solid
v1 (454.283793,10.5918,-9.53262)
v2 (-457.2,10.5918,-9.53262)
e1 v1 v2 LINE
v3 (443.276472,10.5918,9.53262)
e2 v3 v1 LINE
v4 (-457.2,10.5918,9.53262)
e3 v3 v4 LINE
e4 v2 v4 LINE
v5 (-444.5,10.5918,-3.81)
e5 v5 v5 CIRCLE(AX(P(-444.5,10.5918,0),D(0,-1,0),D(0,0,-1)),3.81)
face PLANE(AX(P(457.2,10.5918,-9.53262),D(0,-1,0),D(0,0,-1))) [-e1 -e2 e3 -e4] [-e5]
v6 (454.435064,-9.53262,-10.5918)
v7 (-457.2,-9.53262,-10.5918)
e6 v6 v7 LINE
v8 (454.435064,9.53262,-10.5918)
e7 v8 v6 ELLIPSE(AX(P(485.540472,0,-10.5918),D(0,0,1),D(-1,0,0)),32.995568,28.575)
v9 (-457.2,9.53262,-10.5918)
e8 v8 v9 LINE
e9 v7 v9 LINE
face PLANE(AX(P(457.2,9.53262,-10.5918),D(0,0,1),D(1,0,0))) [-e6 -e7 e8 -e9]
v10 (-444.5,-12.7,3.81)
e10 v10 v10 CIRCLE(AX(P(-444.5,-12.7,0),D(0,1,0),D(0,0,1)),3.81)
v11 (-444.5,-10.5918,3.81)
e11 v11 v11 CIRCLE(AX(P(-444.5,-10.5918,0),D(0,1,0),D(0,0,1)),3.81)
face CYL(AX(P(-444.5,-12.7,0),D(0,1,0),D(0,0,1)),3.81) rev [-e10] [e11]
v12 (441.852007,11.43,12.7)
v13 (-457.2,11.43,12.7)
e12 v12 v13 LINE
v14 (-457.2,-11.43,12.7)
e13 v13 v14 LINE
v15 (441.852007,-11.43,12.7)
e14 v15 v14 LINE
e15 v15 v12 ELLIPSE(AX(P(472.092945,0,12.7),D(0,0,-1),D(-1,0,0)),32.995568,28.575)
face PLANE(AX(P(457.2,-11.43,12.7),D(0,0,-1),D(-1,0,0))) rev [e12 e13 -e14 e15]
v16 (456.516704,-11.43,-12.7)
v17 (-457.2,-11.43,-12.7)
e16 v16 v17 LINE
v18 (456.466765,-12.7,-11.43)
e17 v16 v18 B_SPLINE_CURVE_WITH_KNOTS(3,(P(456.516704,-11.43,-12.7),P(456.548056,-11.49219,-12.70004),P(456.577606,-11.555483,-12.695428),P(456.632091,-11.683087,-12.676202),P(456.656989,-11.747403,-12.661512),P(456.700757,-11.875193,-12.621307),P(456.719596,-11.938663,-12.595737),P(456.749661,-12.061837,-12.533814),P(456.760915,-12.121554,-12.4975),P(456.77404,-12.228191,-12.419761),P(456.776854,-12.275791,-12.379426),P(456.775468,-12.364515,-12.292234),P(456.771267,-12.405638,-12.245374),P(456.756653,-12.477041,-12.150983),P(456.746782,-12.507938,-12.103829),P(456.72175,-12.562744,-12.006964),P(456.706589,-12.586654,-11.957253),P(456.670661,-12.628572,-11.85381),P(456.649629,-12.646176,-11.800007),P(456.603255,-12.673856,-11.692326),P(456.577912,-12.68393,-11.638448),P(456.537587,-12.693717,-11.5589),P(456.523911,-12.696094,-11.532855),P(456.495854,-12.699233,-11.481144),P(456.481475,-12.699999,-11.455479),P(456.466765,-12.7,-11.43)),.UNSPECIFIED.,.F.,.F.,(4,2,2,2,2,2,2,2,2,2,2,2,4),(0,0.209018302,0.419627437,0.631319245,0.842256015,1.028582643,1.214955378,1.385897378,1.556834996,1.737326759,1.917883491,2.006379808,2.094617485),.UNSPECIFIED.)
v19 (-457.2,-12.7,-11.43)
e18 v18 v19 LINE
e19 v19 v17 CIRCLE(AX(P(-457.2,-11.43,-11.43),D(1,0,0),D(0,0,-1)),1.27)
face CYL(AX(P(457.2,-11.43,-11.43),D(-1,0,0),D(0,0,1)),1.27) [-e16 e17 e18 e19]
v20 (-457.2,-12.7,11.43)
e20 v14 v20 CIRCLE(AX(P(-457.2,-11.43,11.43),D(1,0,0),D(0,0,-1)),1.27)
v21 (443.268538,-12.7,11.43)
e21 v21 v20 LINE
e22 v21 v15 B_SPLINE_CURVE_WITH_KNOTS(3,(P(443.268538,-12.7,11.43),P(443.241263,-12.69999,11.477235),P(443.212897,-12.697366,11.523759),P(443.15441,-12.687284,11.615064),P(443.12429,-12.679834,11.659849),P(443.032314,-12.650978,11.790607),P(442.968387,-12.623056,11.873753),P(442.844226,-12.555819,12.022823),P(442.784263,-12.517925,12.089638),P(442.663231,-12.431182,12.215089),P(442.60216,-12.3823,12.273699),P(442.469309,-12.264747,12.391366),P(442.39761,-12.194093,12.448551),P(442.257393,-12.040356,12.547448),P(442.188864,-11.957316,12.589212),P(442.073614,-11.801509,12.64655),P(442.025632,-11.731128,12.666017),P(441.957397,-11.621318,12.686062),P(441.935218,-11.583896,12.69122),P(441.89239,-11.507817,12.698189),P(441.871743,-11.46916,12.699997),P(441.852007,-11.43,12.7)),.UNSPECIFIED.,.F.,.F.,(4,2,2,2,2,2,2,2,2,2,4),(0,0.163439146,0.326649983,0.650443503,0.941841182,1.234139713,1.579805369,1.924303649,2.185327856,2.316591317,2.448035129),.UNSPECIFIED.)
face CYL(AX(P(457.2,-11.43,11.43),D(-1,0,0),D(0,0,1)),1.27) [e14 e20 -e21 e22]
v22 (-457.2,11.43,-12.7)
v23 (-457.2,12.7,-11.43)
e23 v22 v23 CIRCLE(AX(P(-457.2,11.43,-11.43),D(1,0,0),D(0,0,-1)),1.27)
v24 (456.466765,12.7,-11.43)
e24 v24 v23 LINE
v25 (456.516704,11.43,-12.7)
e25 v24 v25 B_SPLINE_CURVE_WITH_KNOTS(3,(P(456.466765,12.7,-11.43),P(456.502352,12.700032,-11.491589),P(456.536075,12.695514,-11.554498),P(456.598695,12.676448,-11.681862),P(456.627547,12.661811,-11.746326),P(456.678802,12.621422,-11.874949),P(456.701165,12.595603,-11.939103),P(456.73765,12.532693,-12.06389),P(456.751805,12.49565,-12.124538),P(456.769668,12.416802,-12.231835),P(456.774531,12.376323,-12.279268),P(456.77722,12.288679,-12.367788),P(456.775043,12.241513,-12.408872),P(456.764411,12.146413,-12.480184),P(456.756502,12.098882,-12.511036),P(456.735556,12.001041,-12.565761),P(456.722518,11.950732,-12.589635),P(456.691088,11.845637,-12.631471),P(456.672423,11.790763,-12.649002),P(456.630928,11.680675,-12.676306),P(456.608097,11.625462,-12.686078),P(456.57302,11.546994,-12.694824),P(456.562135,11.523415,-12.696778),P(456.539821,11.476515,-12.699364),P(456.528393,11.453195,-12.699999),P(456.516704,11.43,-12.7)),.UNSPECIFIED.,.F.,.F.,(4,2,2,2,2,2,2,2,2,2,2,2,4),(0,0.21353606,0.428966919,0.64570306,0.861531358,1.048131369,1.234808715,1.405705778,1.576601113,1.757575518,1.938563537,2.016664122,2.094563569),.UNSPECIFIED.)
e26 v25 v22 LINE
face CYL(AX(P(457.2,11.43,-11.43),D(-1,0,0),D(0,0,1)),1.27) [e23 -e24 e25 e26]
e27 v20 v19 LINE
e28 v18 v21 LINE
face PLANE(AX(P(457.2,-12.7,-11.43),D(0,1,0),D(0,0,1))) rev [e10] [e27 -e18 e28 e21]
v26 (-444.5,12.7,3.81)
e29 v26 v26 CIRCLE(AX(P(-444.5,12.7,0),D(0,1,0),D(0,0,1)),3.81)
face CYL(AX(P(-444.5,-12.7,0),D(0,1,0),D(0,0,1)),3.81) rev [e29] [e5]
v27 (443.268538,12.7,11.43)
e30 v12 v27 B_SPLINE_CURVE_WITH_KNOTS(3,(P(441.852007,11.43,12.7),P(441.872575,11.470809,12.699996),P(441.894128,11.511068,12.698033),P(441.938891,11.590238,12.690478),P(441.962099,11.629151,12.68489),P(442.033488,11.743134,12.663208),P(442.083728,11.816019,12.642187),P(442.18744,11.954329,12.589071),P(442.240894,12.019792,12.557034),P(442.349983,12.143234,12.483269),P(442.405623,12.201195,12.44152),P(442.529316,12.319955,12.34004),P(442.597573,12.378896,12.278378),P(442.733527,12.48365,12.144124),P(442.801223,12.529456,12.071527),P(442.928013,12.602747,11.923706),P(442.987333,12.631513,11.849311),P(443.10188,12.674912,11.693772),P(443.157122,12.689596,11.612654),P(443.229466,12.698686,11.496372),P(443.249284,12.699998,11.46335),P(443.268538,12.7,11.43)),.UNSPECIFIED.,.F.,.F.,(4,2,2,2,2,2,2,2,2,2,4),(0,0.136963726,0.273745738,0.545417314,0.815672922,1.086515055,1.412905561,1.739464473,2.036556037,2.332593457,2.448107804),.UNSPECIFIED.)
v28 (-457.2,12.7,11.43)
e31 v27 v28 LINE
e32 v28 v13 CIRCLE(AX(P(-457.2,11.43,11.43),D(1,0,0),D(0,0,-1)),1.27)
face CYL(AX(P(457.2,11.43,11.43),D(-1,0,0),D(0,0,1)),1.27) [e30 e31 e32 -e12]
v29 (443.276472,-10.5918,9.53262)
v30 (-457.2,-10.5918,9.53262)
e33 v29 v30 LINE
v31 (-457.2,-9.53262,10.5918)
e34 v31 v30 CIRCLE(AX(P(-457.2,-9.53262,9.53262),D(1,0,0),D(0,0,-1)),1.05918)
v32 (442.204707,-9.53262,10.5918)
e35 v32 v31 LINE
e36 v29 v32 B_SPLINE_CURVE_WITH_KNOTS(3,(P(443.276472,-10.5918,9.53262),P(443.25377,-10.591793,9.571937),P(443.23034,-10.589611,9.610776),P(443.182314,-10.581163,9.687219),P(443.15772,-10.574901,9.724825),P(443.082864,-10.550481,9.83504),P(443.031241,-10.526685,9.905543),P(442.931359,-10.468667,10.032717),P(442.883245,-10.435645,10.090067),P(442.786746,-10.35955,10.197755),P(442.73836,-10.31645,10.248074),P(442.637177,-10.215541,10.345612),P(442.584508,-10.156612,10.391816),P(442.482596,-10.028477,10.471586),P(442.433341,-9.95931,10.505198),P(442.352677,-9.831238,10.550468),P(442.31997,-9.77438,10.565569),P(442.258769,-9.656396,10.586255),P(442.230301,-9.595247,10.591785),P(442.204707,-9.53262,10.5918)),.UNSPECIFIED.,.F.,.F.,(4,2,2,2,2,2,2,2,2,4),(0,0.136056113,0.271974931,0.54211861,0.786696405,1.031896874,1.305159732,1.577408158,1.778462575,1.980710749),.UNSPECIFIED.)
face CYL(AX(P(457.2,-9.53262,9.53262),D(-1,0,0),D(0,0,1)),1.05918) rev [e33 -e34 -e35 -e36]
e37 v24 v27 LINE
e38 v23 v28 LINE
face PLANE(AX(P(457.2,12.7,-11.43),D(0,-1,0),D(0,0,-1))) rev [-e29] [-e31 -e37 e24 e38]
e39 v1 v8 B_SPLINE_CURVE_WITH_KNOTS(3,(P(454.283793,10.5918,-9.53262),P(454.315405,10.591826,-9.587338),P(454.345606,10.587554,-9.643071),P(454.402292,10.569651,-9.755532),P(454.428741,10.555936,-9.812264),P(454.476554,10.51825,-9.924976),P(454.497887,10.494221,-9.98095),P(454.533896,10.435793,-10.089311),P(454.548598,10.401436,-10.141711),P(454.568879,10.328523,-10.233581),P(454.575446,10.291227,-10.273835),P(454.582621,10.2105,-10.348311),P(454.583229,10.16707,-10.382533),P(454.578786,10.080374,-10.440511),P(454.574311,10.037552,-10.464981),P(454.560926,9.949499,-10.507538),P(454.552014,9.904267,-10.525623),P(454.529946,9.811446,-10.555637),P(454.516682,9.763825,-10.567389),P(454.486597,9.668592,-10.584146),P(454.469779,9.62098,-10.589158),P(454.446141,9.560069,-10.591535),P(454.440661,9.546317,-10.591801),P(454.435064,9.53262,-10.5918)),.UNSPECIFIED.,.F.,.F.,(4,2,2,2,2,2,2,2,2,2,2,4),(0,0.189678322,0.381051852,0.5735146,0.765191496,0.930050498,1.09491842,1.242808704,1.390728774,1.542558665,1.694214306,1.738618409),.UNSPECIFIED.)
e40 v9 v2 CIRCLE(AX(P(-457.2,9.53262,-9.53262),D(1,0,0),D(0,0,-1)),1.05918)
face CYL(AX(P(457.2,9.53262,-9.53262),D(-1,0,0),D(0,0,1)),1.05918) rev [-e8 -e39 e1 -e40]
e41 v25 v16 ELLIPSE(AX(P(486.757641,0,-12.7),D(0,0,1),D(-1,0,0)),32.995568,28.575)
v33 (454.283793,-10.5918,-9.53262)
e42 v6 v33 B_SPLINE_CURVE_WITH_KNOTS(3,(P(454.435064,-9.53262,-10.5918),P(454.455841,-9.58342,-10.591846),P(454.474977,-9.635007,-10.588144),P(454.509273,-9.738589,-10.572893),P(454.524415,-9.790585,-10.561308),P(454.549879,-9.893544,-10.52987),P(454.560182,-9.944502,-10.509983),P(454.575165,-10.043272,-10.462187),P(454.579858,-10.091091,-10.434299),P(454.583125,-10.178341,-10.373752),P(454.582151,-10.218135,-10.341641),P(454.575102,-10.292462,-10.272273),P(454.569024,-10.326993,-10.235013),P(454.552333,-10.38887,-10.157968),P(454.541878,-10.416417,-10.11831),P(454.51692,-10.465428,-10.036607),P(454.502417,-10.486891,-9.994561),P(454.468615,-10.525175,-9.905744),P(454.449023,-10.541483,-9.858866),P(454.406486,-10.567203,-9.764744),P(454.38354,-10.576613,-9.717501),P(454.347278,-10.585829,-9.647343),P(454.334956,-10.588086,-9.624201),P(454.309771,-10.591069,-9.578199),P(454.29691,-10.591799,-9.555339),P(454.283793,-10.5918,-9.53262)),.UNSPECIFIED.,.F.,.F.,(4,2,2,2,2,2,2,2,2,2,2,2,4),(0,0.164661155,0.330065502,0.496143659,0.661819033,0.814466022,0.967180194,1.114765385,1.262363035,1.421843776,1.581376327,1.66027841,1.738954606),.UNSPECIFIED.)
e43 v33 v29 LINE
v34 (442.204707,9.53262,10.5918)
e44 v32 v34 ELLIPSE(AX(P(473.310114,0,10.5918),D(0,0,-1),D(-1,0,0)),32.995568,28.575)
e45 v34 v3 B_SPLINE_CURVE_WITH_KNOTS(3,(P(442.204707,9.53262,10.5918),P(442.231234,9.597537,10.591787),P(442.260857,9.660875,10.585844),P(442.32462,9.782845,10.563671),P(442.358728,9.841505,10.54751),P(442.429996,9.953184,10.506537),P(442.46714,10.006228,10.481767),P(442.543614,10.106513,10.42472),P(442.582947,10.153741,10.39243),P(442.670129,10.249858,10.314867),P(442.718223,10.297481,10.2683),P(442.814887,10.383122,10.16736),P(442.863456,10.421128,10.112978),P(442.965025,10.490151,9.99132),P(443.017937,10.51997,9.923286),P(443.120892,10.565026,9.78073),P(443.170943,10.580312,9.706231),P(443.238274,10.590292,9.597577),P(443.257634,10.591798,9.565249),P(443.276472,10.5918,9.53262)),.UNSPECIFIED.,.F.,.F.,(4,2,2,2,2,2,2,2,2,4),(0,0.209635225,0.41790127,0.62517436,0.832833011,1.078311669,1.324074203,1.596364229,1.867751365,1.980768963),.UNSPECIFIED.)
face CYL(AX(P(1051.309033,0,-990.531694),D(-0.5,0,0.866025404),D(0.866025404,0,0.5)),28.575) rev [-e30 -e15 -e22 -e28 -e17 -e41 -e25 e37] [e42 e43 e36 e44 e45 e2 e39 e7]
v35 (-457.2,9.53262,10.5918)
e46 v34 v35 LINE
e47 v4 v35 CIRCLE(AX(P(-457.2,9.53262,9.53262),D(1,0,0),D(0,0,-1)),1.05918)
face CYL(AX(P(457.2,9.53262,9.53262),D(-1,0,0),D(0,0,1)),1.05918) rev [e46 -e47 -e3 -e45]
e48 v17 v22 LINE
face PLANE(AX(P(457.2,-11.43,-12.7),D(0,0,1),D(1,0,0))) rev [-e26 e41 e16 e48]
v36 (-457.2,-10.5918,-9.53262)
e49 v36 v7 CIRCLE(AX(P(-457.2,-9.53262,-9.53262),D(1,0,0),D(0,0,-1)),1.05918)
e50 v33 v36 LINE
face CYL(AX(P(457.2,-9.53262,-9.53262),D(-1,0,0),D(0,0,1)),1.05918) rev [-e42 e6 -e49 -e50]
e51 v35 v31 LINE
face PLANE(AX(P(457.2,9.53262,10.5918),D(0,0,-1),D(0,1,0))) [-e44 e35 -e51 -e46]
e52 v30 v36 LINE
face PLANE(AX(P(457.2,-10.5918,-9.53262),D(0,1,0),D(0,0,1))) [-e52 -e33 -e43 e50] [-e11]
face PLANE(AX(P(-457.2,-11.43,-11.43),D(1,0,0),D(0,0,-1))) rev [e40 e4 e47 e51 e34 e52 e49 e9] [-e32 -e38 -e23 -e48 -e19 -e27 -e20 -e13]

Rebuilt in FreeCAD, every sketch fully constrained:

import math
import FreeCAD as App
import Part
import Sketcher
Q = App.Units.Quantity

doc = App.newDocument("Part")
body = doc.addObject("PartDesign::Body", "Body")

# Sketch on YZ plane
sketch1 = body.newObject("Sketcher::SketchObject", "Sketch")
sketch1.AttachmentSupport = (doc.getObject("YZ_Plane"), [""])
sketch1.MapMode = "FlatFace"
sketch1.addGeometry(Part.LineSegment(App.Vector(-11.4, -12.7, 0), App.Vector(11.4, -12.7, 0)), False)
sketch1.addGeometry(Part.ArcOfCircle(Part.Circle(App.Vector(11.4, -11.4, 0), App.Vector(0, 0, 1), 1.3), math.radians(-90), math.radians(0)), False)
sketch1.addGeometry(Part.LineSegment(App.Vector(12.7, -11.4, 0), App.Vector(12.7, 11.4, 0)), False)
sketch1.addGeometry(Part.ArcOfCircle(Part.Circle(App.Vector(11.4, 11.4, 0), App.Vector(0, 0, 1), 1.3), math.radians(0), math.radians(90)), False)
sketch1.addGeometry(Part.LineSegment(App.Vector(11.4, 12.7, 0), App.Vector(-11.4, 12.7, 0)), False)
sketch1.addGeometry(Part.ArcOfCircle(Part.Circle(App.Vector(-11.4, 11.4, 0), App.Vector(0, 0, 1), 1.3), math.radians(90), math.radians(180)), False)
sketch1.addGeometry(Part.LineSegment(App.Vector(-12.7, 11.4, 0), App.Vector(-12.7, -11.4, 0)), False)
sketch1.addGeometry(Part.ArcOfCircle(Part.Circle(App.Vector(-11.4, -11.4, 0), App.Vector(0, 0, 1), 1.3), math.radians(180), math.radians(270)), False)
sketch1.addGeometry(Part.ArcOfCircle(Part.Circle(App.Vector(9.5, -9.5, 0), App.Vector(0, 0, 1), 1.1), math.radians(-90), math.radians(0)), False)
sketch1.addGeometry(Part.LineSegment(App.Vector(9.5, -10.6, 0), App.Vector(-9.5, -10.6, 0)), False)
sketch1.addGeometry(Part.ArcOfCircle(Part.Circle(App.Vector(-9.5, -9.5, 0), App.Vector(0, 0, 1), 1.1), math.radians(-180), math.radians(-90)), False)
sketch1.addGeometry(Part.LineSegment(App.Vector(-10.6, -9.5, 0), App.Vector(-10.6, 9.5, 0)), False)
sketch1.addGeometry(Part.ArcOfCircle(Part.Circle(App.Vector(-9.5, 9.5, 0), App.Vector(0, 0, 1), 1.1), math.radians(90), math.radians(180)), False)
sketch1.addGeometry(Part.LineSegment(App.Vector(-9.5, 10.6, 0), App.Vector(9.5, 10.6, 0)), False)
sketch1.addGeometry(Part.ArcOfCircle(Part.Circle(App.Vector(9.5, 9.5, 0), App.Vector(0, 0, 1), 1.1), math.radians(0), math.radians(90)), False)
sketch1.addGeometry(Part.LineSegment(App.Vector(10.6, 9.5, 0), App.Vector(10.6, -9.5, 0)), False)
sketch1.addConstraint(Sketcher.Constraint("Tangent", 0, 2, 1, 1))
sketch1.addConstraint(Sketcher.Constraint("Tangent", 1, 2, 2, 1))
sketch1.addConstraint(Sketcher.Constraint("Tangent", 2, 2, 3, 1))
sketch1.addConstraint(Sketcher.Constraint("Tangent", 3, 2, 4, 1))
sketch1.addConstraint(Sketcher.Constraint("Tangent", 4, 2, 5, 1))
sketch1.addConstraint(Sketcher.Constraint("Tangent", 5, 2, 6, 1))
sketch1.addConstraint(Sketcher.Constraint("Tangent", 6, 2, 7, 1))
sketch1.addConstraint(Sketcher.Constraint("Tangent", 7, 2, 0, 1))
sketch1.addConstraint(Sketcher.Constraint("Tangent", 8, 1, 9, 1))
sketch1.addConstraint(Sketcher.Constraint("Tangent", 9, 2, 10, 2))
sketch1.addConstraint(Sketcher.Constraint("Tangent", 10, 1, 11, 1))
sketch1.addConstraint(Sketcher.Constraint("Tangent", 11, 2, 12, 2))
sketch1.addConstraint(Sketcher.Constraint("Tangent", 12, 1, 13, 1))
sketch1.addConstraint(Sketcher.Constraint("Tangent", 13, 2, 14, 2))
sketch1.addConstraint(Sketcher.Constraint("Tangent", 14, 1, 15, 1))
sketch1.addConstraint(Sketcher.Constraint("Tangent", 15, 2, 8, 2))
sketch1.addConstraint(Sketcher.Constraint("Horizontal", 0))
sketch1.addConstraint(Sketcher.Constraint("Vertical", 2))
sketch1.addConstraint(Sketcher.Constraint("Horizontal", 4))
sketch1.addConstraint(Sketcher.Constraint("Vertical", 6))
sketch1.addConstraint(Sketcher.Constraint("Horizontal", 9))
sketch1.addConstraint(Sketcher.Constraint("Vertical", 11))
sketch1.addConstraint(Sketcher.Constraint("Horizontal", 13))
sketch1.addConstraint(Sketcher.Constraint("Vertical", 15))
sketch1.addConstraint(Sketcher.Constraint("Equal", 1, 3))
sketch1.addConstraint(Sketcher.Constraint("Equal", 3, 5))
sketch1.addConstraint(Sketcher.Constraint("Equal", 5, 7))
sketch1.addConstraint(Sketcher.Constraint("Equal", 8, 10))
sketch1.addConstraint(Sketcher.Constraint("Equal", 10, 12))
sketch1.addConstraint(Sketcher.Constraint("Equal", 12, 14))
sketch1.addConstraint(Sketcher.Constraint("Symmetric", 1, 3, 5, 3, -1, 1))
sketch1.addConstraint(Sketcher.Constraint("Symmetric", 8, 3, 12, 3, -1, 1))
sketch1.addConstraint(Sketcher.Constraint("Equal", 4, 2))
sketch1.addConstraint(Sketcher.Constraint("Equal", 13, 11))
sketch1.addConstraint(Sketcher.Constraint("Radius", 1, Q("0.05 in")))
sketch1.addConstraint(Sketcher.Constraint("DistanceX", 0, 1, 0, 2, Q("0.9 in")))
sketch1.addConstraint(Sketcher.Constraint("Radius", 8, Q("0.0417 in")))
sketch1.addConstraint(Sketcher.Constraint("DistanceX", 9, 2, 9, 1, Q("0.7506 in")))
pad1 = body.newObject("PartDesign::Pad", "Pad")
pad1.Profile = sketch1
pad1.Type = "TwoLengths"
pad1.Length = Q("18 in")
pad1.Length2 = Q("18 in")

# Sketch on XZ plane
sketch2 = body.newObject("Sketcher::SketchObject", "Sketch001")
sketch2.AttachmentSupport = (doc.getObject("XZ_Plane"), [""])
sketch2.MapMode = "FlatFace"
sketch2.AttachmentOffset = App.Placement(App.Vector(0, 0, -0.5 * 25.4), App.Rotation())
sketch2.addGeometry(Part.Circle(App.Vector(-444.5, 0, 0), App.Vector(0, 0, 1), 3.8), False)
sketch2.addConstraint(Sketcher.Constraint("PointOnObject", 0, 3, -1))
sketch2.addConstraint(Sketcher.Constraint("Diameter", 0, Q("0.3 in")))
sketch2.addConstraint(Sketcher.Constraint("DistanceX", 0, 3, -1, 1, Q("17.5 in")))
pocket1 = body.newObject("PartDesign::Pocket", "Pocket")
pocket1.Profile = sketch2
pocket1.Type = "ThroughAll"
pocket1.Reversed = True

# Sketch on XZ plane
sketch3 = body.newObject("Sketcher::SketchObject", "Sketch002")
sketch3.AttachmentSupport = (doc.getObject("XZ_Plane"), [""])
sketch3.MapMode = "FlatFace"
sketch3.AttachmentOffset = App.Placement(App.Vector(0, 0, -0.5 * 25.4), App.Rotation())
sketch3.addGeometry(Part.LineSegment(App.Vector(457, -13, 0), App.Vector(443, 13, 0)), False)
sketch3.addGeometry(Part.LineSegment(App.Vector(443, 13, 0), App.Vector(457, 13, 0)), False)
sketch3.addGeometry(Part.LineSegment(App.Vector(457, 13, 0), App.Vector(457, -13, 0)), False)
sketch3.addConstraint(Sketcher.Constraint("Coincident", 0, 2, 1, 1))
sketch3.addConstraint(Sketcher.Constraint("Coincident", 1, 2, 2, 1))
sketch3.addConstraint(Sketcher.Constraint("Coincident", 2, 2, 0, 1))
sketch3.addConstraint(Sketcher.Constraint("Horizontal", 1))
sketch3.addConstraint(Sketcher.Constraint("Vertical", 2))
sketch3.addConstraint(Sketcher.Constraint("DistanceY", 2, 2, 2, 1, Q("1 in")))
sketch3.addConstraint(Sketcher.Constraint("DistanceX", -1, 1, 1, 2, Q("18 in")))
sketch3.addConstraint(Sketcher.Constraint("Angle", 0, Q("120 deg")))
sketch3.addConstraint(Sketcher.Constraint("DistanceY", -1, 1, 0, 2, Q("0.5 in")))
pocket2 = body.newObject("PartDesign::Pocket", "Pocket001")
pocket2.Profile = sketch3
pocket2.Type = "ThroughAll"
pocket2.Reversed = True

# Sketch on an angled plane
sketch4 = body.newObject("Sketcher::SketchObject", "Sketch003")
sketch4.Placement = App.Placement(App.Vector(119.799261, 0, -207.498407), App.Rotation(App.Vector(0, 1, 0), App.Vector(0.866025404, 0, 0.5), App.Vector(0.5, 0, -0.866025404), "ZXY"))
sketch4.addGeometry(Part.LineSegment(App.Vector(13, 390, 0), App.Vector(1441, 1098, 0)), False)
sketch4.addGeometry(Part.LineSegment(App.Vector(1441, 1098, 0), App.Vector(1441, 4288, 0)), False)
sketch4.addGeometry(Part.LineSegment(App.Vector(1441, 4288, 0), App.Vector(-1441, 4288, 0)), False)
sketch4.addGeometry(Part.LineSegment(App.Vector(-1441, 4288, 0), App.Vector(-1441, 1098, 0)), False)
sketch4.addGeometry(Part.LineSegment(App.Vector(-1441, 1098, 0), App.Vector(-13, 390, 0)), False)
sketch4.addGeometry(Part.ArcOfCircle(Part.Circle(App.Vector(0, 415, 0), App.Vector(0, 0, 1), 29), math.radians(-116), math.radians(-64)), False)
sketch4.addConstraint(Sketcher.Constraint("Coincident", 0, 2, 1, 1))
sketch4.addConstraint(Sketcher.Constraint("Coincident", 1, 2, 2, 1))
sketch4.addConstraint(Sketcher.Constraint("Coincident", 2, 2, 3, 1))
sketch4.addConstraint(Sketcher.Constraint("Coincident", 3, 2, 4, 1))
sketch4.addConstraint(Sketcher.Constraint("Tangent", 4, 2, 5, 1))
sketch4.addConstraint(Sketcher.Constraint("Tangent", 5, 2, 0, 1))
sketch4.addConstraint(Sketcher.Constraint("Vertical", 1))
sketch4.addConstraint(Sketcher.Constraint("Horizontal", 2))
sketch4.addConstraint(Sketcher.Constraint("Vertical", 3))
sketch4.addConstraint(Sketcher.Constraint("Symmetric", 0, 2, 3, 2, -2))
sketch4.addConstraint(Sketcher.Constraint("PointOnObject", 5, 3, -2))
sketch4.addConstraint(Sketcher.Constraint("Radius", 5, Q("1.125 in")))
sketch4.addConstraint(Sketcher.Constraint("DistanceX", 4, 2, -1, 1, Q("0.5 in")))
sketch4.addConstraint(Sketcher.Constraint("DistanceY", 1, 1, 1, 2, 3189.20351))
sketch4.addConstraint(Sketcher.Constraint("DistanceY", 4, 2, 2, 2, 3897.915401))
sketch4.addConstraint(Sketcher.Constraint("DistanceY", -1, 1, 5, 3, 415.194483))
pocket3 = body.newObject("PartDesign::Pocket", "Pocket002")
pocket3.Profile = sketch4
pocket3.Type = "ThroughAll"
pocket3.Midplane = True

doc.recompute()
